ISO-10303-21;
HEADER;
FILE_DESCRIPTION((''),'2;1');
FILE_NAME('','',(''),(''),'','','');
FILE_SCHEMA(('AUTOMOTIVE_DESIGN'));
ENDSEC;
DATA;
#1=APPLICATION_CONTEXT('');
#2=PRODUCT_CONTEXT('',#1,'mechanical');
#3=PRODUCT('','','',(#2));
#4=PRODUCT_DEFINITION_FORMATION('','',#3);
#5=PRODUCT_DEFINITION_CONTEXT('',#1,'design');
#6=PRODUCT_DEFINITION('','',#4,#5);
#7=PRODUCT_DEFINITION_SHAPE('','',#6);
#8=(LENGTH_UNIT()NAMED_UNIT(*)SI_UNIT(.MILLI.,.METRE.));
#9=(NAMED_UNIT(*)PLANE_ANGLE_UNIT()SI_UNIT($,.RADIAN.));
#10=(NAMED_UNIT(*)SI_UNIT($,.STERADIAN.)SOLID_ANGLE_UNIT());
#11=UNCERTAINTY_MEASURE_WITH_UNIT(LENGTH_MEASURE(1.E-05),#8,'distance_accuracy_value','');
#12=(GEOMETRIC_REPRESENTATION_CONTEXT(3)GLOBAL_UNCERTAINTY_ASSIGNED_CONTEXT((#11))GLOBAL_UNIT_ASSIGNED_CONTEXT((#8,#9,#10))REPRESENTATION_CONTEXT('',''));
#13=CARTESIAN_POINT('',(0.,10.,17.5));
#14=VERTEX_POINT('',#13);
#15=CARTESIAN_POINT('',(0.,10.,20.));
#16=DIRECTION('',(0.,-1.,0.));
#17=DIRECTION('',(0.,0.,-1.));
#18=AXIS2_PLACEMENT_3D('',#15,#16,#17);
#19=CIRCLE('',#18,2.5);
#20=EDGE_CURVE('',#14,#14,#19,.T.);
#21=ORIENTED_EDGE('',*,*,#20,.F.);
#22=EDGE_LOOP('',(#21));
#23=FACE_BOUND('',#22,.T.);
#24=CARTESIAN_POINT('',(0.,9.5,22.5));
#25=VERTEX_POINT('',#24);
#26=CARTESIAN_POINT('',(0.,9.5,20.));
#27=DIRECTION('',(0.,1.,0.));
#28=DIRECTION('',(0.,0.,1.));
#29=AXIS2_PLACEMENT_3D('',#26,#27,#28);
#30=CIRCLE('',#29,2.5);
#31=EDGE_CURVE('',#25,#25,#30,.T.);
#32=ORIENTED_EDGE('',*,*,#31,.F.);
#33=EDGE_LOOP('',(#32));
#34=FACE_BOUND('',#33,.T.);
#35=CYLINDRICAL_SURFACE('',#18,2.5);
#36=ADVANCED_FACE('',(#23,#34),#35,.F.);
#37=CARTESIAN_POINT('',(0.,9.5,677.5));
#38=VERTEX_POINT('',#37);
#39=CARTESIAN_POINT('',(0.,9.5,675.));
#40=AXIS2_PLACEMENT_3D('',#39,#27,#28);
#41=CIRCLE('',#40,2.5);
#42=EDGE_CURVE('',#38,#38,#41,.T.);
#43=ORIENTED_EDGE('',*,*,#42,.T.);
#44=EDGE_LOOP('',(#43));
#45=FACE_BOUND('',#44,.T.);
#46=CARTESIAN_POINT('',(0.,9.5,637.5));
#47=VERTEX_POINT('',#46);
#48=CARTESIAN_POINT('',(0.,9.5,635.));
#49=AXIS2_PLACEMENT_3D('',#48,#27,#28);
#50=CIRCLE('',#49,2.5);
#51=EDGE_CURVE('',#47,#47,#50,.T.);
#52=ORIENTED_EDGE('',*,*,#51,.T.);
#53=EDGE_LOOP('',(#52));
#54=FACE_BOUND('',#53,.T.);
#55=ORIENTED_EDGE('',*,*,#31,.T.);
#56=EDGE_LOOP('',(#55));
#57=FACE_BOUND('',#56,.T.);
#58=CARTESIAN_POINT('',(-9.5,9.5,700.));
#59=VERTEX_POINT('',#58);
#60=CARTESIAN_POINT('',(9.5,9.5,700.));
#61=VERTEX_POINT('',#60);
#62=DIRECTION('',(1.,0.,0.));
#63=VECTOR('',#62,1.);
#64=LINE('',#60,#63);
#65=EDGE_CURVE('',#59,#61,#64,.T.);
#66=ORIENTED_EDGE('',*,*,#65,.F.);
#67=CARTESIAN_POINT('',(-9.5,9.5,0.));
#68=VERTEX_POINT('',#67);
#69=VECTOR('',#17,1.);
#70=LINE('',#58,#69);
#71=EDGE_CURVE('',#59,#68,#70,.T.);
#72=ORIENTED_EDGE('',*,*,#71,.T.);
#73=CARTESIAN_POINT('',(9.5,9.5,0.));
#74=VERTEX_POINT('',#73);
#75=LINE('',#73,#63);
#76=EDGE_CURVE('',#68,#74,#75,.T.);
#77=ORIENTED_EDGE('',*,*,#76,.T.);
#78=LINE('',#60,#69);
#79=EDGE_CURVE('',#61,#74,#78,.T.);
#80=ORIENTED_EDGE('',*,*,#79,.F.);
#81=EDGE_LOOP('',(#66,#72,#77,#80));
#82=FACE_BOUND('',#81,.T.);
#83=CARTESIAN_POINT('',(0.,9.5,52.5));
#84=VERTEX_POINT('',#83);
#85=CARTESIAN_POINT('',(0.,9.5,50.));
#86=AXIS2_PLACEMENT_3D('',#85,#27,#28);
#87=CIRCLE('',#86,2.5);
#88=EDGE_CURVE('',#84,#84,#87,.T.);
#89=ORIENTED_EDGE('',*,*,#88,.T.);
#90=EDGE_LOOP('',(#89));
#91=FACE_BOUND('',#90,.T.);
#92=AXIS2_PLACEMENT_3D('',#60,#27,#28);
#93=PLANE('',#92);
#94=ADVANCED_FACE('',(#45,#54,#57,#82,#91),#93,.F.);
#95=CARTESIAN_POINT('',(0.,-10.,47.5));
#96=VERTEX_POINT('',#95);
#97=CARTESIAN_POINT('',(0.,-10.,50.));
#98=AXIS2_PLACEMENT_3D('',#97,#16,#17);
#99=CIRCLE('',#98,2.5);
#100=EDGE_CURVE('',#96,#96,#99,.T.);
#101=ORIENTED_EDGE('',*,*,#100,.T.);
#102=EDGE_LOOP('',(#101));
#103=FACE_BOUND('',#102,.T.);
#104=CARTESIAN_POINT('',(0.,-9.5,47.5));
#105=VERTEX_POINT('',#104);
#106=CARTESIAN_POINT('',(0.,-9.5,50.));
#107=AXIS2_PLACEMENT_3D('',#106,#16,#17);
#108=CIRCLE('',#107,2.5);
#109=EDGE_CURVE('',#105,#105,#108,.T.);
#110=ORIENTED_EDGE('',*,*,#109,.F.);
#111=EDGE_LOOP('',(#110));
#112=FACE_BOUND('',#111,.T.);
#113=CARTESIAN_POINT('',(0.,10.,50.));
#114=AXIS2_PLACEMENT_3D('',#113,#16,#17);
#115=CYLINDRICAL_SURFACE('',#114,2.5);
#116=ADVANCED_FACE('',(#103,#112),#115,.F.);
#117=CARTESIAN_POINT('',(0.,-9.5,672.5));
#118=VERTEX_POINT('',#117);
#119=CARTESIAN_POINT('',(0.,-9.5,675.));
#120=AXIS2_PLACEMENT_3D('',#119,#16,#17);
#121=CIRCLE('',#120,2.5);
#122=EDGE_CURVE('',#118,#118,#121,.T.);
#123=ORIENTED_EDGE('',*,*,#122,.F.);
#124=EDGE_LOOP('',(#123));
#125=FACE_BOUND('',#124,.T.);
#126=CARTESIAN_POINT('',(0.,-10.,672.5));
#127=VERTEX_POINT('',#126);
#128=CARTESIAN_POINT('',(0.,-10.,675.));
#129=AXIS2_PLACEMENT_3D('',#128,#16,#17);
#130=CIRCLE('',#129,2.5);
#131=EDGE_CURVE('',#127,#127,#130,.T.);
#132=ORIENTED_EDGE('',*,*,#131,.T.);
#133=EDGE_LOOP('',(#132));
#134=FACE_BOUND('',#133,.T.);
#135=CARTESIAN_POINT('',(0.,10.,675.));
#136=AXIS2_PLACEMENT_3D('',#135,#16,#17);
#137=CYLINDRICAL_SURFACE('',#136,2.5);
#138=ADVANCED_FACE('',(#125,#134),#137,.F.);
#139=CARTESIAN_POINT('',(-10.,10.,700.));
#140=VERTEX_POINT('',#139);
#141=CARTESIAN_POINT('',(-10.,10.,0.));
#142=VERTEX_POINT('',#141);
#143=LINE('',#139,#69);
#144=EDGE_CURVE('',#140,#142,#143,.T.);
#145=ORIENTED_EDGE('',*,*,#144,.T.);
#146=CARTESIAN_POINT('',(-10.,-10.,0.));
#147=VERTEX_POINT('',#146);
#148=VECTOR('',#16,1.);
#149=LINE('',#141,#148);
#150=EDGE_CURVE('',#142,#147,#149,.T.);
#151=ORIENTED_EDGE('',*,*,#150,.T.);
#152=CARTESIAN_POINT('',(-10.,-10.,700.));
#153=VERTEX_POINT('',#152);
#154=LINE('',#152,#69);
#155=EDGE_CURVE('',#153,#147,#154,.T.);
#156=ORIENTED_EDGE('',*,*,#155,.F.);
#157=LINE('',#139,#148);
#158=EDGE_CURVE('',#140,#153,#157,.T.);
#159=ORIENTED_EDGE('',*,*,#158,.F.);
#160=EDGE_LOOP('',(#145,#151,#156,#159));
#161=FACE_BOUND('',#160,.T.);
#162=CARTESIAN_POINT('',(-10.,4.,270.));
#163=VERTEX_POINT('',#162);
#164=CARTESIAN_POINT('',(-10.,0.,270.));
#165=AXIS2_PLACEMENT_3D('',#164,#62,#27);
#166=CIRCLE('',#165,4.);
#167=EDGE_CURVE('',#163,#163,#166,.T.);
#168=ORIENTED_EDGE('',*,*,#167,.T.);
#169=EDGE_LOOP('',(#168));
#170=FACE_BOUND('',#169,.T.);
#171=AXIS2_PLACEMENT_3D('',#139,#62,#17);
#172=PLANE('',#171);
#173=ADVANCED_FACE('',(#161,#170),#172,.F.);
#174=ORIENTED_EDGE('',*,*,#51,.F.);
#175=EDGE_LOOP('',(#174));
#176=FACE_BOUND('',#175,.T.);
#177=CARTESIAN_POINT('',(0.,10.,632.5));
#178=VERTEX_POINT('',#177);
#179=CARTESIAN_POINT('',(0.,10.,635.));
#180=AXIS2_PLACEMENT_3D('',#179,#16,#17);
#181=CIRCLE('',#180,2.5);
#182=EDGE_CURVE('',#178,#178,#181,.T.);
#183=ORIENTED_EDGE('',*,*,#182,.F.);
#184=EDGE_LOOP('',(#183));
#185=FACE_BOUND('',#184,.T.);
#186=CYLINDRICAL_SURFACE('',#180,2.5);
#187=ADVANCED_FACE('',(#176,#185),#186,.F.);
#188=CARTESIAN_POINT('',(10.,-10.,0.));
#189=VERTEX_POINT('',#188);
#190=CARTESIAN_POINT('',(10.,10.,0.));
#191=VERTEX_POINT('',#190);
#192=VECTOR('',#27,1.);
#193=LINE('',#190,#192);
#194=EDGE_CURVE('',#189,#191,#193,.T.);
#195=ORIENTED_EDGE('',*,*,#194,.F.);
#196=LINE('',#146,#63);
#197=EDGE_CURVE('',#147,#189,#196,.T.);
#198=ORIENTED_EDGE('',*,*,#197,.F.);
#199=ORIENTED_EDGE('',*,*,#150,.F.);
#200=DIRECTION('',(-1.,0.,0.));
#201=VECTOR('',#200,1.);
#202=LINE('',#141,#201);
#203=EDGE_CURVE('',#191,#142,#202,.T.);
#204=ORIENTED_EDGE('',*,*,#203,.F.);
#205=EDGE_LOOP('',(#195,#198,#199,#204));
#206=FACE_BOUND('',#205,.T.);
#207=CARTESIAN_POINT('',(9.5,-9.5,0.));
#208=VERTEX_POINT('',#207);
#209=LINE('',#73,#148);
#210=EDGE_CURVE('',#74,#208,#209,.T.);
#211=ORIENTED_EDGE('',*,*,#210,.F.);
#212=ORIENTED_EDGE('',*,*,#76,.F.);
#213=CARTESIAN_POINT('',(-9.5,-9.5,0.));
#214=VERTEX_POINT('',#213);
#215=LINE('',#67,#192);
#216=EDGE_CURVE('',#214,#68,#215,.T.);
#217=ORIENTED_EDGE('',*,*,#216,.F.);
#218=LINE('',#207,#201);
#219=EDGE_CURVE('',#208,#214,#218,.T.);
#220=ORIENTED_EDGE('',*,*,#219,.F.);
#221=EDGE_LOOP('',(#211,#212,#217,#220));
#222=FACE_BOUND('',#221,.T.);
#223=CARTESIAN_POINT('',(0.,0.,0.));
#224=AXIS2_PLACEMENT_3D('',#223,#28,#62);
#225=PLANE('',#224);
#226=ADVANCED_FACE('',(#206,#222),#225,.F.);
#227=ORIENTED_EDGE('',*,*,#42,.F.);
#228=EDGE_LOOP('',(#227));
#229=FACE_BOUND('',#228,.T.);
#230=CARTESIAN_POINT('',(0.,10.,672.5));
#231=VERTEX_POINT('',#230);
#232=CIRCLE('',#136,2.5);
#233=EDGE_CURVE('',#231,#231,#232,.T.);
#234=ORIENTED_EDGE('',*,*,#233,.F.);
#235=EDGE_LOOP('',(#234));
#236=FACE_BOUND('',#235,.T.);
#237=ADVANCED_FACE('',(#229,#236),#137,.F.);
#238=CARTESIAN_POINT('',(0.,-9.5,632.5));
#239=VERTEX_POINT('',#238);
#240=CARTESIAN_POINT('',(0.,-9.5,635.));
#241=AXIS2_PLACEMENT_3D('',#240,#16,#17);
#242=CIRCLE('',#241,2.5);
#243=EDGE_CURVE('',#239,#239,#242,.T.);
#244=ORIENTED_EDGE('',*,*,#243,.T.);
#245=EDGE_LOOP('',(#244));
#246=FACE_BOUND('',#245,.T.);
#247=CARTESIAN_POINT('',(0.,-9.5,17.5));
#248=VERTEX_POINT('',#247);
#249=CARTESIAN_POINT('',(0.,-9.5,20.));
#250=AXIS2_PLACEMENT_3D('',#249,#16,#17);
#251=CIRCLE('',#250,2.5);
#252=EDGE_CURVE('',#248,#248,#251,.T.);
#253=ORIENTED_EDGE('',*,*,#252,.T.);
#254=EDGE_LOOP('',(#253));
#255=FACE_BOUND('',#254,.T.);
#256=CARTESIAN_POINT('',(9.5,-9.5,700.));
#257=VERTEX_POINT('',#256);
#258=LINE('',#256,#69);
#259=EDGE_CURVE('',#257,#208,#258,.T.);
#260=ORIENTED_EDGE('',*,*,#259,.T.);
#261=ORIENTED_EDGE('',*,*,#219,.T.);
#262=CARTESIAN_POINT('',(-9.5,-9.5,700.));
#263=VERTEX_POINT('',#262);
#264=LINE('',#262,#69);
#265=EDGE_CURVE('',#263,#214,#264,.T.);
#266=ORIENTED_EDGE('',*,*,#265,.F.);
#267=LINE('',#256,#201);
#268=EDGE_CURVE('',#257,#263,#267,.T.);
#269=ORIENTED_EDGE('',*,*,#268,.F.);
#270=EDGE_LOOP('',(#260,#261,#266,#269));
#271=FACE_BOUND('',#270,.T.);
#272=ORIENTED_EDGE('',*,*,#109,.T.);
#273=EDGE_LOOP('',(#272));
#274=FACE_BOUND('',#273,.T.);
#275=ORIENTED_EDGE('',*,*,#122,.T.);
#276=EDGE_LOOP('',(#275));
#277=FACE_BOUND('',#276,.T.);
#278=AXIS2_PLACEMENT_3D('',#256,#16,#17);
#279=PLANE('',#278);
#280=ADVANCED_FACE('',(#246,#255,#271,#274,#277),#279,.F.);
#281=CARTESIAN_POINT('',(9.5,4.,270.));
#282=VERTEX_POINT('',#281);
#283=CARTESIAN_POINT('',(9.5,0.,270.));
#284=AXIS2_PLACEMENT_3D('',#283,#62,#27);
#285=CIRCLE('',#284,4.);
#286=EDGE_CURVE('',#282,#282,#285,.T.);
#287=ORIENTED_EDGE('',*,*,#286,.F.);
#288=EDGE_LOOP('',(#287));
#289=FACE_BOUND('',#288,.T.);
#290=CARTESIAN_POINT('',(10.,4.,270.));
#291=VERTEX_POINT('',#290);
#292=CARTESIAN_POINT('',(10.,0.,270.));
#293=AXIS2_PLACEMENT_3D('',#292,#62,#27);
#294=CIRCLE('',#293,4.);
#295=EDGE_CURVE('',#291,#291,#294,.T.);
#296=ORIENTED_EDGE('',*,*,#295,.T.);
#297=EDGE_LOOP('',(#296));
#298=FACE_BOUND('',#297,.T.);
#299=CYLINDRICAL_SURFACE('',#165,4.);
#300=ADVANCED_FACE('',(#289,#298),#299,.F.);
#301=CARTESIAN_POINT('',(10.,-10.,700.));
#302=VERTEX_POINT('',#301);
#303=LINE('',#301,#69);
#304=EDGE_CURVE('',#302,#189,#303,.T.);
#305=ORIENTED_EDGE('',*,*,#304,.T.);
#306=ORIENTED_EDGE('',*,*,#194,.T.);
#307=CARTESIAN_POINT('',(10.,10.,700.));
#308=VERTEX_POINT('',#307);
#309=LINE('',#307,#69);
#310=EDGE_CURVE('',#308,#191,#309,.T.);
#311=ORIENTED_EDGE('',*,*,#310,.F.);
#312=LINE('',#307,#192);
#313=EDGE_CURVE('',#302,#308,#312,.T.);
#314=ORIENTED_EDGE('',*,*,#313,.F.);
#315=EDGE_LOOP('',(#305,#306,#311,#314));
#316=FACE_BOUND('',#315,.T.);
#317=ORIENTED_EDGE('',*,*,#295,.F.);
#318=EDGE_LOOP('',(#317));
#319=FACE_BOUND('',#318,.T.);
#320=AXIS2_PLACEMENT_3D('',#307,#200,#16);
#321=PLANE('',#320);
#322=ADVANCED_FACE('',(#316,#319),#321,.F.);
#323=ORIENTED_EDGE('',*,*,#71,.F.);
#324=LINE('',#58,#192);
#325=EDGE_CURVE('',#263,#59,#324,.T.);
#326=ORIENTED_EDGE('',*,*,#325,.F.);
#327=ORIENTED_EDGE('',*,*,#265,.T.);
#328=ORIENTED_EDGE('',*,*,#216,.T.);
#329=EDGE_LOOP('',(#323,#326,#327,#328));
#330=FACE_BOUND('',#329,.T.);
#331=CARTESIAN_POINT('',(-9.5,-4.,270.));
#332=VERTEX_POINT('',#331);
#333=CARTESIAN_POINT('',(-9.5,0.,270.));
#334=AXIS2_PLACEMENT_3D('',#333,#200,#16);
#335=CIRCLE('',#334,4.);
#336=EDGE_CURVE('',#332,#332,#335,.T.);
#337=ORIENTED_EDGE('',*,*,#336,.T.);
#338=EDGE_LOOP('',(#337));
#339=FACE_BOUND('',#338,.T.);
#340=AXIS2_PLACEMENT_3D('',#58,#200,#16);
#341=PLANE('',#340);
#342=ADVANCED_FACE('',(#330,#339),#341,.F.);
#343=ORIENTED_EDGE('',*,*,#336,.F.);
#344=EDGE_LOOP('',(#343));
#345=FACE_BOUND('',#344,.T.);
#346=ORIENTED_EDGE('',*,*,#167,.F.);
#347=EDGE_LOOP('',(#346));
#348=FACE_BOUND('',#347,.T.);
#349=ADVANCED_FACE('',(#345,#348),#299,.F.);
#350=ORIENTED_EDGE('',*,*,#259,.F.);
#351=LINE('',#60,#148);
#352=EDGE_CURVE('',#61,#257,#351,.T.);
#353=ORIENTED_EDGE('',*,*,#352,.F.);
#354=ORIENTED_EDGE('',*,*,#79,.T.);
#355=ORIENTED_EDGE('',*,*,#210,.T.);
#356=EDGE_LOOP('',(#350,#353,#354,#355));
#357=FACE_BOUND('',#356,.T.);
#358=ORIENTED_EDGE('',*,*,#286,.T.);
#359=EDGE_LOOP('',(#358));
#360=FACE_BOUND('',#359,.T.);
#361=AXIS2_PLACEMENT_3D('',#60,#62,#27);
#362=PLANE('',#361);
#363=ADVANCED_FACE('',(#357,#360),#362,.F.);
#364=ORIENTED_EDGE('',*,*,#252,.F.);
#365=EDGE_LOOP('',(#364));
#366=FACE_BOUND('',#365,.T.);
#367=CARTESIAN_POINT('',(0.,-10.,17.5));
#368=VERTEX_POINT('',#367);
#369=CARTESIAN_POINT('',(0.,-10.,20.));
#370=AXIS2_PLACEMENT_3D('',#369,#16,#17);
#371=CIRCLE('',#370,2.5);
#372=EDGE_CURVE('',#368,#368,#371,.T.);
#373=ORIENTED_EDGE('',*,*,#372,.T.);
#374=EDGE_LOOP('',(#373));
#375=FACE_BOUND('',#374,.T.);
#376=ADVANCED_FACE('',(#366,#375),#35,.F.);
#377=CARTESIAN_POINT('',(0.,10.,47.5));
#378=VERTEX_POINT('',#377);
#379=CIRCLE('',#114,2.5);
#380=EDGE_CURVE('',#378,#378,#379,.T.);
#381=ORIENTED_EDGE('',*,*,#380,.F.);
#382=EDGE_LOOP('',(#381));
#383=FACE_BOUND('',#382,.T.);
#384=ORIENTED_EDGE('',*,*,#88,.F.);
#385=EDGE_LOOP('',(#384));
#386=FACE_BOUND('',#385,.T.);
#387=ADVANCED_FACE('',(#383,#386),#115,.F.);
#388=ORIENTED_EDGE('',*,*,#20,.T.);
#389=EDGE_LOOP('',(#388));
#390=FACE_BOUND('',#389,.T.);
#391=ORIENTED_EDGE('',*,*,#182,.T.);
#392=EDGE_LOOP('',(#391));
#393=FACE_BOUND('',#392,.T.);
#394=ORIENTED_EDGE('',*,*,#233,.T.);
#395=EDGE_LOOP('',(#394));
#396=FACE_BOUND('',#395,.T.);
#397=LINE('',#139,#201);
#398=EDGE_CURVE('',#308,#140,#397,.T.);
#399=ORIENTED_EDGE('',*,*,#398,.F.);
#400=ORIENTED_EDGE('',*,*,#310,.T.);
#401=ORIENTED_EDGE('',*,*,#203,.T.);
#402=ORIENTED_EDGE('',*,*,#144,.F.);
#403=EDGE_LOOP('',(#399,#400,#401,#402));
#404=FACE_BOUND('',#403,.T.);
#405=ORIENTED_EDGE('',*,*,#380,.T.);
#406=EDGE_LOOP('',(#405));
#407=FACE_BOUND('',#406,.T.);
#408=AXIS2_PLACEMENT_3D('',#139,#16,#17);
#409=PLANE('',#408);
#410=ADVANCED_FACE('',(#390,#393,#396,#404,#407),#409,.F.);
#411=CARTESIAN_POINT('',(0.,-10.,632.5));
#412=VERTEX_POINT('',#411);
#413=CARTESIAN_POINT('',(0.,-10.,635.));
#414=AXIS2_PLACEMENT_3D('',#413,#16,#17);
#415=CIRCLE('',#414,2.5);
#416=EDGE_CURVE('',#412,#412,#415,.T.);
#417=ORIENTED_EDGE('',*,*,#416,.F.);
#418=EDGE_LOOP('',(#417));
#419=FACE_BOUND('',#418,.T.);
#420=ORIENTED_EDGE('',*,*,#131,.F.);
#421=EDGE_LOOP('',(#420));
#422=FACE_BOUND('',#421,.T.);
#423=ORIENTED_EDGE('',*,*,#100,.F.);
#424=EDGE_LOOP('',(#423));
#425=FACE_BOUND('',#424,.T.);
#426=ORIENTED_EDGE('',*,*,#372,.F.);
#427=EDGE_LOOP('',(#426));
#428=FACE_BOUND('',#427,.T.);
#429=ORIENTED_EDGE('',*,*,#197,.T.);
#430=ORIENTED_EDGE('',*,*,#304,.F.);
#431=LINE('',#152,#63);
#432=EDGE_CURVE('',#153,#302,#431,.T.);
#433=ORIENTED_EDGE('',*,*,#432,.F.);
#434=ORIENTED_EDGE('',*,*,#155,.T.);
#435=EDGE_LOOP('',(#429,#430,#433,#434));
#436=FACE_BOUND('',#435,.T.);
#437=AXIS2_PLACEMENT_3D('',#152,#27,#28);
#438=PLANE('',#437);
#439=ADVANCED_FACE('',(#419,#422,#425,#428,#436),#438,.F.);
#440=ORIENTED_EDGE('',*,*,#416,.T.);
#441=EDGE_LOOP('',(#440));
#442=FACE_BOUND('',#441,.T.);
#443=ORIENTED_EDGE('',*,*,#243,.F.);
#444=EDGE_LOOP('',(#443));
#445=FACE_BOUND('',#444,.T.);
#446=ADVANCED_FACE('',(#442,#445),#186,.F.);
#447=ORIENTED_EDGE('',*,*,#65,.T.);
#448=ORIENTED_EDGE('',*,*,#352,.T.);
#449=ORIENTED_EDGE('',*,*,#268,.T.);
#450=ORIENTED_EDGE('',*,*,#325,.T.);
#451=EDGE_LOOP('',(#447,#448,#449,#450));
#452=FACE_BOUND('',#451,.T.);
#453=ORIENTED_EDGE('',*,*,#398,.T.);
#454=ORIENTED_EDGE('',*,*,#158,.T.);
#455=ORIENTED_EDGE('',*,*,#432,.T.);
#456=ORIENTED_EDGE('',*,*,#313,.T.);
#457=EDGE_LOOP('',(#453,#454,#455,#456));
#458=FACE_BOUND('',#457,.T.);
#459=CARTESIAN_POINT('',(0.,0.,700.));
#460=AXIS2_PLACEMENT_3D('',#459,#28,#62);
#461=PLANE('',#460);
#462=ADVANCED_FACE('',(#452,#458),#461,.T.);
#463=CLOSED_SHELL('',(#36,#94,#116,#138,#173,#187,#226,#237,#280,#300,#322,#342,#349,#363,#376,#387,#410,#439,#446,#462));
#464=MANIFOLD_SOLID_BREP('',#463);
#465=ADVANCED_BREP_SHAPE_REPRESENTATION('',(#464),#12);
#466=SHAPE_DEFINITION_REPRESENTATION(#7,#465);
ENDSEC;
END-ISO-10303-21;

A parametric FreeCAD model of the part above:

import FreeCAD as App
import Part
import Sketcher

V = App.Vector
Q = App.Units.Quantity

doc = App.newDocument("Part")
body = doc.addObject("PartDesign::Body", "Body")

# Sketch on XY plane
sketch1 = body.newObject("Sketcher::SketchObject", "Sketch")
sketch1.AttachmentSupport = (doc.getObject("XY_Plane"), [""])
sketch1.MapMode = "FlatFace"
sketch1.addGeometry(Part.LineSegment(V(-10, 10, 0), V(-10, -10, 0)), False)
sketch1.addGeometry(Part.LineSegment(V(-10, -10, 0), V(10, -10, 0)), False)
sketch1.addGeometry(Part.LineSegment(V(10, -10, 0), V(10, 10, 0)), False)
sketch1.addGeometry(Part.LineSegment(V(10, 10, 0), V(-10, 10, 0)), False)
sketch1.addConstraint(Sketcher.Constraint("Coincident", 0, 2, 1, 1))
sketch1.addConstraint(Sketcher.Constraint("Coincident", 1, 2, 2, 1))
sketch1.addConstraint(Sketcher.Constraint("Coincident", 2, 2, 3, 1))
sketch1.addConstraint(Sketcher.Constraint("Coincident", 3, 2, 0, 1))
sketch1.addConstraint(Sketcher.Constraint("Vertical", 0))
sketch1.addConstraint(Sketcher.Constraint("Horizontal", 1))
sketch1.addConstraint(Sketcher.Constraint("Vertical", 2))
sketch1.addConstraint(Sketcher.Constraint("Horizontal", 3))
sketch1.addConstraint(Sketcher.Constraint("Symmetric", 0, 2, 2, 2, -1, 1))
sketch1.addConstraint(Sketcher.Constraint("Equal", 3, 0))
sketch1.addConstraint(Sketcher.Constraint("DistanceX", 1, 1, 1, 2, Q("20 mm")))
pad1 = body.newObject("PartDesign::Pad", "Pad")
pad1.Profile = sketch1
pad1.Length = 700

# Sketch on XY plane
sketch2 = body.newObject("Sketcher::SketchObject", "Sketch001")
sketch2.AttachmentSupport = (doc.getObject("XY_Plane"), [""])
sketch2.MapMode = "FlatFace"
sketch2.addGeometry(Part.LineSegment(V(10, 10, 0), V(10, -10, 0)), False)
sketch2.addGeometry(Part.LineSegment(V(10, -10, 0), V(-10, -10, 0)), False)
sketch2.addGeometry(Part.LineSegment(V(-10, -10, 0), V(-10, 10, 0)), False)
sketch2.addGeometry(Part.LineSegment(V(-10, 10, 0), V(10, 10, 0)), False)
sketch2.addConstraint(Sketcher.Constraint("Coincident", 0, 2, 1, 1))
sketch2.addConstraint(Sketcher.Constraint("Coincident", 1, 2, 2, 1))
sketch2.addConstraint(Sketcher.Constraint("Coincident", 2, 2, 3, 1))
sketch2.addConstraint(Sketcher.Constraint("Coincident", 3, 2, 0, 1))
sketch2.addConstraint(Sketcher.Constraint("Vertical", 0))
sketch2.addConstraint(Sketcher.Constraint("Horizontal", 1))
sketch2.addConstraint(Sketcher.Constraint("Vertical", 2))
sketch2.addConstraint(Sketcher.Constraint("Horizontal", 3))
sketch2.addConstraint(Sketcher.Constraint("Symmetric", 0, 2, 2, 2, -1, 1))
sketch2.addConstraint(Sketcher.Constraint("Equal", 3, 0))
sketch2.addConstraint(Sketcher.Constraint("DistanceX", 1, 2, 1, 1, Q("19 mm")))
pocket1 = body.newObject("PartDesign::Pocket", "Pocket")
pocket1.Profile = sketch2
pocket1.Length = 700
pocket1.Reversed = True

# Sketch on XZ plane
sketch3 = body.newObject("Sketcher::SketchObject", "Sketch002")
sketch3.AttachmentSupport = (doc.getObject("XZ_Plane"), [""])
sketch3.MapMode = "FlatFace"
sketch3.AttachmentOffset = App.Placement(V(0, 0, 10), App.Rotation())
sketch3.addGeometry(Part.Circle(V(0, 635, 0), V(0, 0, 1), 2.5), False)
sketch3.addGeometry(Part.Circle(V(0, 675, 0), V(0, 0, 1), 2.5), False)
sketch3.addConstraint(Sketcher.Constraint("Equal", 0, 1))
sketch3.addConstraint(Sketcher.Constraint("PointOnObject", 0, 3, -2))
sketch3.addConstraint(Sketcher.Constraint("PointOnObject", 1, 3, -2))
sketch3.addConstraint(Sketcher.Constraint("Diameter", 0, Q("5 mm")))
sketch3.addConstraint(Sketcher.Constraint("DistanceY", -1, 1, 0, 3, Q("635 mm")))
sketch3.addConstraint(Sketcher.Constraint("DistanceY", -1, 1, 1, 3, Q("675 mm")))
pocket2 = body.newObject("PartDesign::Pocket", "Pocket001")
pocket2.Profile = sketch3
pocket2.Length = 20

# Sketch on YZ plane
sketch4 = body.newObject("Sketcher::SketchObject", "Sketch003")
sketch4.AttachmentSupport = (doc.getObject("YZ_Plane"), [""])
sketch4.MapMode = "FlatFace"
sketch4.AttachmentOffset = App.Placement(V(0, 0, 10), App.Rotation())
sketch4.addGeometry(Part.Circle(V(0, 270, 0), V(0, 0, 1), 4), False)
sketch4.addConstraint(Sketcher.Constraint("PointOnObject", 0, 3, -2))
sketch4.addConstraint(Sketcher.Constraint("Diameter", 0, Q("8 mm")))
sketch4.addConstraint(Sketcher.Constraint("DistanceY", -1, 1, 0, 3, Q("270 mm")))
pocket3 = body.newObject("PartDesign::Pocket", "Pocket002")
pocket3.Profile = sketch4
pocket3.Length = 20

# Sketch on XZ plane
sketch5 = body.newObject("Sketcher::SketchObject", "Sketch004")
sketch5.AttachmentSupport = (doc.getObject("XZ_Plane"), [""])
sketch5.MapMode = "FlatFace"
sketch5.AttachmentOffset = App.Placement(V(0, 0, 10), App.Rotation())
sketch5.addGeometry(Part.Circle(V(0, 20, 0), V(0, 0, 1), 2.5), False)
sketch5.addGeometry(Part.Circle(V(0, 50, 0), V(0, 0, 1), 2.5), False)
sketch5.addConstraint(Sketcher.Constraint("Equal", 0, 1))
sketch5.addConstraint(Sketcher.Constraint("PointOnObject", 0, 3, -2))
sketch5.addConstraint(Sketcher.Constraint("PointOnObject", 1, 3, -2))
sketch5.addConstraint(Sketcher.Constraint("Diameter", 0, Q("5 mm")))
sketch5.addConstraint(Sketcher.Constraint("DistanceY", -1, 1, 0, 3, Q("20 mm")))
sketch5.addConstraint(Sketcher.Constraint("DistanceY", -1, 1, 1, 3, Q("50 mm")))
pocket4 = body.newObject("PartDesign::Pocket", "Pocket003")
pocket4.Profile = sketch5
pocket4.Length = 20

doc.recompute()
